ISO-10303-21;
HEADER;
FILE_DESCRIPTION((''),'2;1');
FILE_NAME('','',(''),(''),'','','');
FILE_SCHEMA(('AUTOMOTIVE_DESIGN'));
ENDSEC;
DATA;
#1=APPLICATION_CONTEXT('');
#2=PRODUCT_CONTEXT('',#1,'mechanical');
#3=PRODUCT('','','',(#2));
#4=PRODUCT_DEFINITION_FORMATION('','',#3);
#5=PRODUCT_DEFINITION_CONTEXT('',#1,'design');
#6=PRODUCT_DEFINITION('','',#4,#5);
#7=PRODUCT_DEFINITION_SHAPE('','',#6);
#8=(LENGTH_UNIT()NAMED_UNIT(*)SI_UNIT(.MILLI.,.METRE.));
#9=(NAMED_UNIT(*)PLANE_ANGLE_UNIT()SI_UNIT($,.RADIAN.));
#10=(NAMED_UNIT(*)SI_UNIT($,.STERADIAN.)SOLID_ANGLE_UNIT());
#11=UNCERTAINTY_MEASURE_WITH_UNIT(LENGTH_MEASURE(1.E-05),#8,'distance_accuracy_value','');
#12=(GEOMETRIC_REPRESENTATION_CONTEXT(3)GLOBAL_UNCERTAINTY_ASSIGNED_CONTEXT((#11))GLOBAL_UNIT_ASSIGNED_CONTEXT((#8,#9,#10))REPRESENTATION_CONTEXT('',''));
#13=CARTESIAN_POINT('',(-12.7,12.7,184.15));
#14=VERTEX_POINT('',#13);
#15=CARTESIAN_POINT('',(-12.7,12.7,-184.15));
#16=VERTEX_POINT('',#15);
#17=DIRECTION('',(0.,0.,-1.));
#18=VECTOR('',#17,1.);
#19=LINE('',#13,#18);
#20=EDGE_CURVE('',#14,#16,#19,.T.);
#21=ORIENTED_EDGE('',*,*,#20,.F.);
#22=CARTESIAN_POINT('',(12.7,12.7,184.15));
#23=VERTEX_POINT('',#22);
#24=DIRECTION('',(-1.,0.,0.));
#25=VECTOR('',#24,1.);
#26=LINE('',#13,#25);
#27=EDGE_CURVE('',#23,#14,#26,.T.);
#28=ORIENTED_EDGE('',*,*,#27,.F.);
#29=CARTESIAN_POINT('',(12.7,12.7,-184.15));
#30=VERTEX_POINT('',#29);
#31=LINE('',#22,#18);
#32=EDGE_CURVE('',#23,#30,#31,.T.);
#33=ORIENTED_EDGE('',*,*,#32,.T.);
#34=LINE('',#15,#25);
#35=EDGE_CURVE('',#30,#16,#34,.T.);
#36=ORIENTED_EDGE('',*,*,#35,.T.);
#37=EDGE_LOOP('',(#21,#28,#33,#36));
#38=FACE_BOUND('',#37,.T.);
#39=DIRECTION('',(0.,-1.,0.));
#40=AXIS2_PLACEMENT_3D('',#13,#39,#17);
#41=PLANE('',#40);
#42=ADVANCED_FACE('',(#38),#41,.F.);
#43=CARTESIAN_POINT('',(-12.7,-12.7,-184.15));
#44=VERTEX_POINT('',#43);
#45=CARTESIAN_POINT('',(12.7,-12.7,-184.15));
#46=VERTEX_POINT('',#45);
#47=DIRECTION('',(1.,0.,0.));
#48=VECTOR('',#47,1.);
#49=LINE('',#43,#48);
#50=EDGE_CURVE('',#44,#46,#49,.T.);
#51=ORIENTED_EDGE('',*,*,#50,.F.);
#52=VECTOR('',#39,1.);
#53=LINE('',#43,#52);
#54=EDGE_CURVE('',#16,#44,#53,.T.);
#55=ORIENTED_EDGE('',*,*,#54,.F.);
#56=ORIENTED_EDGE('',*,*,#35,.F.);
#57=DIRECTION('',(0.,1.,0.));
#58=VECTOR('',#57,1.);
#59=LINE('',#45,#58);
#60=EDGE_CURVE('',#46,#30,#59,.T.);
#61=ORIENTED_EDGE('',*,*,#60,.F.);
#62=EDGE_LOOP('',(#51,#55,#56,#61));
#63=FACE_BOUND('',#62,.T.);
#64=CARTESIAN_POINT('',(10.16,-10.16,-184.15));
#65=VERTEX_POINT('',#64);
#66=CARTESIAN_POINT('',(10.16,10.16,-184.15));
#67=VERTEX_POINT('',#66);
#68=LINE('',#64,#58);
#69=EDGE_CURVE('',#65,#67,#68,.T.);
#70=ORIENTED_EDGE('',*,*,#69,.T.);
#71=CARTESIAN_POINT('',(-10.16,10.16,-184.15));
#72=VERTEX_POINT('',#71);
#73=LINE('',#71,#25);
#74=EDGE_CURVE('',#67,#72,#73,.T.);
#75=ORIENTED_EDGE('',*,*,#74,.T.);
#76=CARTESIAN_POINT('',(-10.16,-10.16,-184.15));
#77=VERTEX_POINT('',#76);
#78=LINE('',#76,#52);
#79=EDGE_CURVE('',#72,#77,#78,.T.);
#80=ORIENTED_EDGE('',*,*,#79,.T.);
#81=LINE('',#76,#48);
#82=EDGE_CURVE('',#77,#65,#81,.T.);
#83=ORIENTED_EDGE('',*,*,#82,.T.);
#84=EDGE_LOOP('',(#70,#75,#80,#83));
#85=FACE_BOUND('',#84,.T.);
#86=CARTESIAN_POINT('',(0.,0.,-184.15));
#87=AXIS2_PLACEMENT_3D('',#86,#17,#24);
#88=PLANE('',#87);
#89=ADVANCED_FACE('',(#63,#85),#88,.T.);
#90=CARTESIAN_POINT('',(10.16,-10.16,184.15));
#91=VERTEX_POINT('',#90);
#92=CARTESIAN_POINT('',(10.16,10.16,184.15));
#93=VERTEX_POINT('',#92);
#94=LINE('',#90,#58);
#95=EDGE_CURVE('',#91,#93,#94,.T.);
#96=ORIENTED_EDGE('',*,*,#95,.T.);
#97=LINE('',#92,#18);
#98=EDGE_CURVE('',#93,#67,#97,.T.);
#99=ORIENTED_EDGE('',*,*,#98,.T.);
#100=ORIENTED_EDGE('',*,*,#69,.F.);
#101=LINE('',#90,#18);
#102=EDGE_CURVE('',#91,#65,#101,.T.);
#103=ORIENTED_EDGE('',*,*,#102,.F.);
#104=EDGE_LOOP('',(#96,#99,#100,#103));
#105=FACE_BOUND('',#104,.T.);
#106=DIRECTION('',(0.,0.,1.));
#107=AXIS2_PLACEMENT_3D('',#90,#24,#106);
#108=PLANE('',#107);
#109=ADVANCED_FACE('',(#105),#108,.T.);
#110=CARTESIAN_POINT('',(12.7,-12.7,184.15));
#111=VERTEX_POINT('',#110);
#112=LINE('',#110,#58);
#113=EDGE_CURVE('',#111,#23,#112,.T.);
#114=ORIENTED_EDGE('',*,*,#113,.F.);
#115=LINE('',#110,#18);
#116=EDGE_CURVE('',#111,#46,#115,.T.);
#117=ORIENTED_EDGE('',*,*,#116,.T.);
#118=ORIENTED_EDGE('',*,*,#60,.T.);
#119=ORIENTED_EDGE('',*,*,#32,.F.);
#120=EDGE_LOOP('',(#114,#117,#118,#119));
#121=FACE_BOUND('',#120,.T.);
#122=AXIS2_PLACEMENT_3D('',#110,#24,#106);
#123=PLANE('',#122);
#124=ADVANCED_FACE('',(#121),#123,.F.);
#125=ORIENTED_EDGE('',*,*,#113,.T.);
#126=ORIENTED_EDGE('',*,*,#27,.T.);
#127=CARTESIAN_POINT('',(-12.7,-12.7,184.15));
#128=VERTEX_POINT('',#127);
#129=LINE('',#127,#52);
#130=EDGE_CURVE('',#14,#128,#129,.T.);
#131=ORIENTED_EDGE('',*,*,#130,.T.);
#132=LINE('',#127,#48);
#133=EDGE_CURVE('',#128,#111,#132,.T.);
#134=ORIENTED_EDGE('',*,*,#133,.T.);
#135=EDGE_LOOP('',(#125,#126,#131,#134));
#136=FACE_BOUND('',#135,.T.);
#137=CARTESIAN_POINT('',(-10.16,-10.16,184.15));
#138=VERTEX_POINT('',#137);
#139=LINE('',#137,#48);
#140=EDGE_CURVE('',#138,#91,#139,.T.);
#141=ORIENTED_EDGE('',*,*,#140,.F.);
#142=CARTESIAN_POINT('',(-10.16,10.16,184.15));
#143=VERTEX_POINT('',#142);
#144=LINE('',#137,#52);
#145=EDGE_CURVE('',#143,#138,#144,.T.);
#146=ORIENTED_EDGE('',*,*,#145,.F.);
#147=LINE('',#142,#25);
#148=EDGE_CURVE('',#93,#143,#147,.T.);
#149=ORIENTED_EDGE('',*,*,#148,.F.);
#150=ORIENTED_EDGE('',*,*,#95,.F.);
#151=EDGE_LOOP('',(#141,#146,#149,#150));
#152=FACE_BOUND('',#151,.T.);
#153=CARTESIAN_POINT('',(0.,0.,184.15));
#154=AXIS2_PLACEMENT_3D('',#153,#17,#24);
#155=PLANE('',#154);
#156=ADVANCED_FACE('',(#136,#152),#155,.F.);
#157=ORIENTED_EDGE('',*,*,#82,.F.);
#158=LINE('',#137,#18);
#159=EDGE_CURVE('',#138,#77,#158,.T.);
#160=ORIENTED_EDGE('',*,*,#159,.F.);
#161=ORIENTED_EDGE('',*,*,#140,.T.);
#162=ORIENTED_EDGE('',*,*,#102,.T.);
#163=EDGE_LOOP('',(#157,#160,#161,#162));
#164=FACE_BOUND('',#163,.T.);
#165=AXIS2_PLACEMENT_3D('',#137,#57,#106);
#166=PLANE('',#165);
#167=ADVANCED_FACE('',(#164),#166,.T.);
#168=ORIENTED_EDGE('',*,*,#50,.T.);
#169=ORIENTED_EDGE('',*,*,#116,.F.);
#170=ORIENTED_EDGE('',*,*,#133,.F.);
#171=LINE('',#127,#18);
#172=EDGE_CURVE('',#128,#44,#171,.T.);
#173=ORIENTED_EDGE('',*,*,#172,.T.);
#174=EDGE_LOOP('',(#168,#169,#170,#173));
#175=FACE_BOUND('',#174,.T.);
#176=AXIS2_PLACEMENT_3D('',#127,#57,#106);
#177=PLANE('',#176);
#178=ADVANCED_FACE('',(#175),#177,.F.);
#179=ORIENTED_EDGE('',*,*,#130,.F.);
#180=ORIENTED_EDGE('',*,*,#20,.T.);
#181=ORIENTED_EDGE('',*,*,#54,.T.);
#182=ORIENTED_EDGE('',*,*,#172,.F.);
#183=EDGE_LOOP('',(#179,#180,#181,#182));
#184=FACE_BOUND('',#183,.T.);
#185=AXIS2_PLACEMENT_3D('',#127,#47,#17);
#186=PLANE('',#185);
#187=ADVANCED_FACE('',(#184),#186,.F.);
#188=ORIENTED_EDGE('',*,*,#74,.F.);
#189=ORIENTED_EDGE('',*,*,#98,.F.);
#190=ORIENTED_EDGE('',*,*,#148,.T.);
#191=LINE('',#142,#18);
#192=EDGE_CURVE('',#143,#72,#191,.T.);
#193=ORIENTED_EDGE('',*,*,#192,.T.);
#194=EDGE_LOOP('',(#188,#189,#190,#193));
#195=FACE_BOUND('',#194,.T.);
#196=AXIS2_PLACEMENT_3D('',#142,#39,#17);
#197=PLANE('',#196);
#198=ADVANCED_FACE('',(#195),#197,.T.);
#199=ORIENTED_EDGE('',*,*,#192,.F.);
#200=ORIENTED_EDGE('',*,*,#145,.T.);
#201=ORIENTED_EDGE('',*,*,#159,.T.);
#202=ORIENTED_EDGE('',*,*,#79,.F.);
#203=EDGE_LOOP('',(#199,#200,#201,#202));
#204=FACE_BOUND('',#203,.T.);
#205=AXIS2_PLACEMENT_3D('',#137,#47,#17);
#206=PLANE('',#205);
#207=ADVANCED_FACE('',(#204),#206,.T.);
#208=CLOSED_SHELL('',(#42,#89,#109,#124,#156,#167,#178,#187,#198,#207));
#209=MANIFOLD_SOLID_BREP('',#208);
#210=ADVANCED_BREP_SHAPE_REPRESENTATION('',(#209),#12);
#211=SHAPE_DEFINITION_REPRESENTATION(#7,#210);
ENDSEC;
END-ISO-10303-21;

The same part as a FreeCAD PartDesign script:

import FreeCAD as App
import Part
import Sketcher
from FreeCAD import Vector
Q = App.Units.Quantity


def add_polygon(sketch, points):
    """Adds a closed chain of lines whose ends are joined by coincident constraints."""
    first, n = sketch.GeometryCount, len(points)
    for a, b in zip(points, points[1:] + points[:1]):
        sketch.addGeometry(Part.LineSegment(App.Vector(*a, 0), App.Vector(*b, 0)), False)
    for i in range(n):
        sketch.addConstraint(Sketcher.Constraint("Coincident", first + i, 2, first + (i + 1) % n, 1))

doc = App.newDocument("Part")
body = doc.addObject("PartDesign::Body", "Body")

# Sketch on XY plane
sketch1 = body.newObject("Sketcher::SketchObject", "Sketch")
sketch1.AttachmentSupport = (doc.getObject("XY_Plane"), [""])
sketch1.MapMode = "FlatFace"
add_polygon(sketch1, [(-13, 13), (-13, -13), (13, -13), (13, 13)])  # lines 0-3
add_polygon(sketch1, [(10, -10), (-10, -10), (-10, 10), (10, 10)])  # lines 4-7
sketch1.addConstraint(Sketcher.Constraint("Vertical", 0))
sketch1.addConstraint(Sketcher.Constraint("Horizontal", 1))
sketch1.addConstraint(Sketcher.Constraint("Vertical", 2))
sketch1.addConstraint(Sketcher.Constraint("Horizontal", 3))
sketch1.addConstraint(Sketcher.Constraint("Horizontal", 4))
sketch1.addConstraint(Sketcher.Constraint("Vertical", 5))
sketch1.addConstraint(Sketcher.Constraint("Horizontal", 6))
sketch1.addConstraint(Sketcher.Constraint("Vertical", 7))
sketch1.addConstraint(Sketcher.Constraint("Symmetric", 0, 2, 2, 2, -1, 1))
sketch1.addConstraint(Sketcher.Constraint("Symmetric", 4, 2, 6, 2, -1, 1))
sketch1.addConstraint(Sketcher.Constraint("Equal", 3, 0))
sketch1.addConstraint(Sketcher.Constraint("Equal", 6, 5))
sketch1.addConstraint(Sketcher.Constraint("DistanceX", 1, 1, 1, 2, Q("1 in")))
sketch1.addConstraint(Sketcher.Constraint("DistanceX", 4, 2, 4, 1, Q("0.8 in")))
pad1 = body.newObject("PartDesign::Pad", "Pad")
pad1.Profile = sketch1
pad1.Length = Q("14.5 in")
pad1.Midplane = True

doc.recompute()
